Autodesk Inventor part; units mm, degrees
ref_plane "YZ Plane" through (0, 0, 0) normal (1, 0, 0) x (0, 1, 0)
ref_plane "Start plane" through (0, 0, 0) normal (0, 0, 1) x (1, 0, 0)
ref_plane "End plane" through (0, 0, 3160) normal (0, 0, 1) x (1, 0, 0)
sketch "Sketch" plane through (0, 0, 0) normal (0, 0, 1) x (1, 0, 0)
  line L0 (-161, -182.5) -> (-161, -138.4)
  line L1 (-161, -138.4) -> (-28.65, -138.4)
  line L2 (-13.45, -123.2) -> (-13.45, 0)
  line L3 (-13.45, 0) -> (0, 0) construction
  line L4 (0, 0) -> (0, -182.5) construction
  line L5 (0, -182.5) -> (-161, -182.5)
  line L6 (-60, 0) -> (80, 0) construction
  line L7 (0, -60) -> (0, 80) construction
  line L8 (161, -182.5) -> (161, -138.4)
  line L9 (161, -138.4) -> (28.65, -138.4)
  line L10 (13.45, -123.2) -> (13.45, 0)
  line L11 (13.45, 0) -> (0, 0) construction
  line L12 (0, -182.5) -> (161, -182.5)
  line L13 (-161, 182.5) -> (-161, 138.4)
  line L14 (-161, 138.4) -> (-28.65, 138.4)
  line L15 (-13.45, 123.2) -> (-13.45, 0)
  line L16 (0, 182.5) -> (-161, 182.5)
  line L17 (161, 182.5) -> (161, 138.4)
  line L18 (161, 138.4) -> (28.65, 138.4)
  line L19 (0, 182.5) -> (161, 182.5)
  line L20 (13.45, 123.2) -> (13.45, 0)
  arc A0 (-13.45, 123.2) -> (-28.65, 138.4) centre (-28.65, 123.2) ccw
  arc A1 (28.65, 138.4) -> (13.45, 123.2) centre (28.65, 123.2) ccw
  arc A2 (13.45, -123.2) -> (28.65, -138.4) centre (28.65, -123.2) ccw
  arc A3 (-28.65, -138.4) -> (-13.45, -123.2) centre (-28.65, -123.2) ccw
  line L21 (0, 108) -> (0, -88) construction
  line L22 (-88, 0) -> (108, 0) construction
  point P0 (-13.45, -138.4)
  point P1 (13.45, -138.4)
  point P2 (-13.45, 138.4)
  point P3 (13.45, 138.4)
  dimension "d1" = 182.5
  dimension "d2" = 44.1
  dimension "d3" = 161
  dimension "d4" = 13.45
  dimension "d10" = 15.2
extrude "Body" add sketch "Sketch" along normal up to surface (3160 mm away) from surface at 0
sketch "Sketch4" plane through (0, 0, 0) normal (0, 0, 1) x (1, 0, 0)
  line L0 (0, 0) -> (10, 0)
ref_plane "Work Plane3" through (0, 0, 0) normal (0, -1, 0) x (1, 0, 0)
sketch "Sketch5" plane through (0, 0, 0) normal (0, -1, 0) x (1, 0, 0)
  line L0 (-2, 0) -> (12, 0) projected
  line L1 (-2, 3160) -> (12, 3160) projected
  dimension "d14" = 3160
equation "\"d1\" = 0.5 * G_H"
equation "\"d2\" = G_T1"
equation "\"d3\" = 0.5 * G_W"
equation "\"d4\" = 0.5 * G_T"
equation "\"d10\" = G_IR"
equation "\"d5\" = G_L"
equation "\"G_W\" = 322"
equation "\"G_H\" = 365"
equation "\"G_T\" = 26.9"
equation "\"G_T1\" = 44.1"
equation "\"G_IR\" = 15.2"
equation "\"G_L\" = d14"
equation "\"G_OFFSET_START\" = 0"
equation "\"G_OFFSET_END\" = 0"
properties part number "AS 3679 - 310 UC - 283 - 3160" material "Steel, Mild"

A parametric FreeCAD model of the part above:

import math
import FreeCAD as App
import Part
import Sketcher
from FreeCAD import Vector
Q = App.Units.Quantity

doc = App.newDocument("Part")
body = doc.addObject("PartDesign::Body", "Body")

# Sketch on XY plane
sketch1 = body.newObject("Sketcher::SketchObject", "Sketch")
sketch1.AttachmentSupport = (doc.getObject("XY_Plane"), [""])
sketch1.MapMode = "FlatFace"
sketch1.addGeometry(Part.LineSegment(Vector(-161, -138.4, 0), Vector(-161, -182.5, 0)), False)
sketch1.addGeometry(Part.LineSegment(Vector(-161, -182.5, 0), Vector(161, -182.5, 0)), False)
sketch1.addGeometry(Part.LineSegment(Vector(161, -182.5, 0), Vector(161, -138.4, 0)), False)
sketch1.addGeometry(Part.LineSegment(Vector(161, -138.4, 0), Vector(28.65, -138.4, 0)), False)
sketch1.addGeometry(Part.ArcOfCircle(Part.Circle(Vector(28.65, -123.2, 0), Vector(0, 0, 1), 15.2), math.radians(180), math.radians(270)), False)
sketch1.addGeometry(Part.LineSegment(Vector(13.45, -123.2, 0), Vector(13.45, 123.2, 0)), False)
sketch1.addGeometry(Part.ArcOfCircle(Part.Circle(Vector(28.65, 123.2, 0), Vector(0, 0, 1), 15.2), math.radians(90), math.radians(180)), False)
sketch1.addGeometry(Part.LineSegment(Vector(28.65, 138.4, 0), Vector(161, 138.4, 0)), False)
sketch1.addGeometry(Part.LineSegment(Vector(161, 138.4, 0), Vector(161, 182.5, 0)), False)
sketch1.addGeometry(Part.LineSegment(Vector(161, 182.5, 0), Vector(-161, 182.5, 0)), False)
sketch1.addGeometry(Part.LineSegment(Vector(-161, 182.5, 0), Vector(-161, 138.4, 0)), False)
sketch1.addGeometry(Part.LineSegment(Vector(-161, 138.4, 0), Vector(-28.65, 138.4, 0)), False)
sketch1.addGeometry(Part.ArcOfCircle(Part.Circle(Vector(-28.65, 123.2, 0), Vector(0, 0, 1), 15.2), math.radians(0), math.radians(90)), False)
sketch1.addGeometry(Part.LineSegment(Vector(-13.45, 123.2, 0), Vector(-13.45, -123.2, 0)), False)
sketch1.addGeometry(Part.ArcOfCircle(Part.Circle(Vector(-28.65, -123.2, 0), Vector(0, 0, 1), 15.2), math.radians(-90), math.radians(0)), False)
sketch1.addGeometry(Part.LineSegment(Vector(-28.65, -138.4, 0), Vector(-161, -138.4, 0)), False)
sketch1.addConstraint(Sketcher.Constraint("Coincident", 0, 2, 1, 1))
sketch1.addConstraint(Sketcher.Constraint("Coincident", 1, 2, 2, 1))
sketch1.addConstraint(Sketcher.Constraint("Coincident", 2, 2, 3, 1))
sketch1.addConstraint(Sketcher.Constraint("Tangent", 3, 2, 4, 2))
sketch1.addConstraint(Sketcher.Constraint("Tangent", 4, 1, 5, 1))
sketch1.addConstraint(Sketcher.Constraint("Tangent", 5, 2, 6, 2))
sketch1.addConstraint(Sketcher.Constraint("Tangent", 6, 1, 7, 1))
sketch1.addConstraint(Sketcher.Constraint("Coincident", 7, 2, 8, 1))
sketch1.addConstraint(Sketcher.Constraint("Coincident", 8, 2, 9, 1))
sketch1.addConstraint(Sketcher.Constraint("Coincident", 9, 2, 10, 1))
sketch1.addConstraint(Sketcher.Constraint("Coincident", 10, 2, 11, 1))
sketch1.addConstraint(Sketcher.Constraint("Tangent", 11, 2, 12, 2))
sketch1.addConstraint(Sketcher.Constraint("Tangent", 12, 1, 13, 1))
sketch1.addConstraint(Sketcher.Constraint("Tangent", 13, 2, 14, 2))
sketch1.addConstraint(Sketcher.Constraint("Tangent", 14, 1, 15, 1))
sketch1.addConstraint(Sketcher.Constraint("Coincident", 15, 2, 0, 1))
sketch1.addConstraint(Sketcher.Constraint("Vertical", 0))
sketch1.addConstraint(Sketcher.Constraint("Horizontal", 1))
sketch1.addConstraint(Sketcher.Constraint("Vertical", 2))
sketch1.addConstraint(Sketcher.Constraint("Horizontal", 3))
sketch1.addConstraint(Sketcher.Constraint("Vertical", 5))
sketch1.addConstraint(Sketcher.Constraint("Horizontal", 7))
sketch1.addConstraint(Sketcher.Constraint("Vertical", 8))
sketch1.addConstraint(Sketcher.Constraint("Horizontal", 9))
sketch1.addConstraint(Sketcher.Constraint("Vertical", 10))
sketch1.addConstraint(Sketcher.Constraint("Horizontal", 11))
sketch1.addConstraint(Sketcher.Constraint("Vertical", 13))
sketch1.addConstraint(Sketcher.Constraint("Horizontal", 15))
sketch1.addConstraint(Sketcher.Constraint("Equal", 4, 6))
sketch1.addConstraint(Sketcher.Constraint("Equal", 6, 12))
sketch1.addConstraint(Sketcher.Constraint("Equal", 12, 14))
sketch1.addConstraint(Sketcher.Constraint("Symmetric", 4, 3, 12, 3, -1, 1))
sketch1.addConstraint(Sketcher.Constraint("Symmetric", 0, 2, 8, 2, -1, 1))
sketch1.addConstraint(Sketcher.Constraint("Symmetric", 7, 2, 10, 2, -2))
sketch1.addConstraint(Sketcher.Constraint("Symmetric", 2, 2, 15, 2, -2))
sketch1.addConstraint(Sketcher.Constraint("Radius", 4, Q("15.2 mm")))
sketch1.addConstraint(Sketcher.Constraint("DistanceY", 0, 2, 0, 1, Q("44.1 mm")))
sketch1.addConstraint(Sketcher.Constraint("DistanceX", 0, 2, -1, 1, Q("161 mm")))
sketch1.addConstraint(Sketcher.Constraint("DistanceY", 0, 2, -1, 1, Q("182.5 mm")))
sketch1.addConstraint(Sketcher.Constraint("DistanceX", -1, 1, 4, 1, Q("13.45 mm")))
pad1 = body.newObject("PartDesign::Pad", "Pad")
pad1.Profile = sketch1
pad1.Length = 3160

doc.recompute()
